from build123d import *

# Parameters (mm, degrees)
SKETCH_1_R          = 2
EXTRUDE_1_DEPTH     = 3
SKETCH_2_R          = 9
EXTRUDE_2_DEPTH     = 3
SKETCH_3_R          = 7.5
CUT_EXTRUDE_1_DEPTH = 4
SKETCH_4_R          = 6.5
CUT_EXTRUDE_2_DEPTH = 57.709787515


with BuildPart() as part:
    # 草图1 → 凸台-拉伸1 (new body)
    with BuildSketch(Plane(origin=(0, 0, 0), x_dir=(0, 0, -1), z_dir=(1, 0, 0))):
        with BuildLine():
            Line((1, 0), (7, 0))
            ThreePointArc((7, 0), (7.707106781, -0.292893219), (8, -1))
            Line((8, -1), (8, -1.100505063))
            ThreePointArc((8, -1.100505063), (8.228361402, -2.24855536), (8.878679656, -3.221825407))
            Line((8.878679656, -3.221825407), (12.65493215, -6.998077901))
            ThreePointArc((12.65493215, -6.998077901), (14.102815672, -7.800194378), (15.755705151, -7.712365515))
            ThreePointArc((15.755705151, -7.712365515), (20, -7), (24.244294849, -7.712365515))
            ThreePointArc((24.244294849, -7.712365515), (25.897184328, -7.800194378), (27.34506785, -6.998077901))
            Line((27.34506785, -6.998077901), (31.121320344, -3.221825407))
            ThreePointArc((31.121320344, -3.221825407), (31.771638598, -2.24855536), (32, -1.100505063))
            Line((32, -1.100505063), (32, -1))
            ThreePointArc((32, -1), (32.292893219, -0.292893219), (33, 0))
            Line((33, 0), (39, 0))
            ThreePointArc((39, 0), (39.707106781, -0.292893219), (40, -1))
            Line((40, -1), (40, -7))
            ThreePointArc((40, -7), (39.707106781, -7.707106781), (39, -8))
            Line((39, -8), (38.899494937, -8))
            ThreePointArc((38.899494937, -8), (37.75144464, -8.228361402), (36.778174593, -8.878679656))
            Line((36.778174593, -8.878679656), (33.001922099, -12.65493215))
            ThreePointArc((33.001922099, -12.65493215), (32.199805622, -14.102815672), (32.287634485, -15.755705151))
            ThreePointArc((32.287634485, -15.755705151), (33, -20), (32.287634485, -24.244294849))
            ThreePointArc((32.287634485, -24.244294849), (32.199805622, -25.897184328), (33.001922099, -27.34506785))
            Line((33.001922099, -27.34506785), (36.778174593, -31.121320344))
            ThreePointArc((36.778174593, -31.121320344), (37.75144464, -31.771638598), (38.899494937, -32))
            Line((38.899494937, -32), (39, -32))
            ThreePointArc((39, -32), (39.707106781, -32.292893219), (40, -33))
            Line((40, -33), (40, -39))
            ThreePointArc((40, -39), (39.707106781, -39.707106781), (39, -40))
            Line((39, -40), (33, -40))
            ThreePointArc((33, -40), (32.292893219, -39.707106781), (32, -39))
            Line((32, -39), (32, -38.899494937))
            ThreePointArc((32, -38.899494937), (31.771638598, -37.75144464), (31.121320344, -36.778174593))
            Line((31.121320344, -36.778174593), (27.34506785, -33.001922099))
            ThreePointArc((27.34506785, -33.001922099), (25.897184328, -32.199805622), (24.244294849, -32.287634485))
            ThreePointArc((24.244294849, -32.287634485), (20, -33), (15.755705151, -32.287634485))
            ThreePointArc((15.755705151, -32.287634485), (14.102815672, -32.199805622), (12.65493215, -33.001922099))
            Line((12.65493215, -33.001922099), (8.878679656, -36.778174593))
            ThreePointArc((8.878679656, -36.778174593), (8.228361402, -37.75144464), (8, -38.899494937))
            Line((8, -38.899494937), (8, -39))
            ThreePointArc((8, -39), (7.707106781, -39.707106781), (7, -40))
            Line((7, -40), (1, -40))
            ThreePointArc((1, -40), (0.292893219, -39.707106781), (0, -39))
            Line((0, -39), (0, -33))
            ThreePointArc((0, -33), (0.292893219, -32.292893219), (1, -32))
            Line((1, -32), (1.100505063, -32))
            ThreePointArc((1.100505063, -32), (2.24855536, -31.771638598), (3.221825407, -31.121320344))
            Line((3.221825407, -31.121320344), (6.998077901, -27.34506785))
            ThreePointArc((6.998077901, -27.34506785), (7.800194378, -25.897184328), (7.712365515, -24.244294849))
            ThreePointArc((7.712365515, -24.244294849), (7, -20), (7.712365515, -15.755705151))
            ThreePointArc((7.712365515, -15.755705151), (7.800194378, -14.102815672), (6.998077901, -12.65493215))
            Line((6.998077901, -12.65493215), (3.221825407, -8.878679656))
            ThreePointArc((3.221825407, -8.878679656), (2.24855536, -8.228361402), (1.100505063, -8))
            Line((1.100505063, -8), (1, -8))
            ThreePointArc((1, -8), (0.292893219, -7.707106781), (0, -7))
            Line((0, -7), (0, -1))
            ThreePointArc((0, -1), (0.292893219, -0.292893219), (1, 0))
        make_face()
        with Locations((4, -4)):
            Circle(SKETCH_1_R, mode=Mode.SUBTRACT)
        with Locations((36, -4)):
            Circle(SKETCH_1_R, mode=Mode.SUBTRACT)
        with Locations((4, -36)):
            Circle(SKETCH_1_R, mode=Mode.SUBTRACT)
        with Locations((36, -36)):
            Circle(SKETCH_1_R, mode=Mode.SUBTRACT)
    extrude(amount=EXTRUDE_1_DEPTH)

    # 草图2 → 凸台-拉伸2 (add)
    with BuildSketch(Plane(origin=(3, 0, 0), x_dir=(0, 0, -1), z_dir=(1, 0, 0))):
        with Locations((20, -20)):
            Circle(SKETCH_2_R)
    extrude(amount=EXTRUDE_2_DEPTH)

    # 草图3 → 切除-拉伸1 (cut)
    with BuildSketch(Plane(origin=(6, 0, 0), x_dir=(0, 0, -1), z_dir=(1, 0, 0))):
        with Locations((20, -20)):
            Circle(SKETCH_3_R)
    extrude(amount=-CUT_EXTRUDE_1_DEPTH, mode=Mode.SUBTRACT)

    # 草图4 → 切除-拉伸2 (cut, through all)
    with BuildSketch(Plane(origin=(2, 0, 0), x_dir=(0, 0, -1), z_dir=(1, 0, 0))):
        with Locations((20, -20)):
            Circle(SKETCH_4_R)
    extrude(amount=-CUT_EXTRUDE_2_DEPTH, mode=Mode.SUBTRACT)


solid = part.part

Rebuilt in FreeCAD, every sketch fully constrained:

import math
import FreeCAD as App
import Part
import Sketcher
from FreeCAD import Vector
Q = App.Units.Quantity

doc = App.newDocument("Part")
params = doc.addObject("Spreadsheet::Sheet", "Params")
for row, (alias, value) in enumerate([
    ("sketch1_diameter", "4 mm"),
    ("sketch1_radius", "1 mm"),
    ("sketch1_radius2", "3 mm"),
    ("sketch1_radius3", "13 mm"),
    ("sketch1_width", "6 mm"),
    ("pad1_length", "3 mm"),
    ("sketch2_diameter", "18 mm"),
    ("pad2_length", "3 mm"),
    ("sketch3_diameter", "15 mm"),
    ("pocket1_length", "4 mm"),
    ("sketch4_diameter", "13 mm"),
], start=1):
    params.set(f"A{row}", alias)
    params.set(f"B{row}", "=" + value)
    params.setAlias(f"B{row}", alias)

body = doc.addObject("PartDesign::Body", "Body")

sketch1 = body.newObject("Sketcher::SketchObject", "Sketch")
sketch1.AttachmentSupport = (doc.getObject("YZ_Plane"), [""])
sketch1.MapMode = "FlatFace"
sketch1.addGeometry(Part.LineSegment(Vector(0, -7, 0), Vector(0, -1, 0)), False)
sketch1.addGeometry(Part.ArcOfCircle(Part.Circle(Vector(-1, -1, 0), Vector(0, 0, 1), 1), math.radians(0), math.radians(90)), False)
sketch1.addGeometry(Part.LineSegment(Vector(-1, 0, 0), Vector(-7, 0, 0)), False)
sketch1.addGeometry(Part.ArcOfCircle(Part.Circle(Vector(-7, -1, 0), Vector(0, 0, 1), 1), math.radians(90), math.radians(180)), False)
sketch1.addGeometry(Part.LineSegment(Vector(-8, -1, 0), Vector(-8, -1.1, 0)), False)
sketch1.addGeometry(Part.ArcOfCircle(Part.Circle(Vector(-11, -1.1, 0), Vector(0, 0, 1), 3), math.radians(-45), math.radians(0)), False)
sketch1.addGeometry(Part.LineSegment(Vector(-8.88, -3.22, 0), Vector(-12.65, -7, 0)), False)
sketch1.addGeometry(Part.ArcOfCircle(Part.Circle(Vector(-14.78, -4.88, 0), Vector(0, 0, 1), 3), math.radians(-109), math.radians(-45)), False)
sketch1.addGeometry(Part.ArcOfCircle(Part.Circle(Vector(-20, -20, 0), Vector(0, 0, 1), 13), math.radians(71), math.radians(109)), False)
sketch1.addGeometry(Part.ArcOfCircle(Part.Circle(Vector(-25.22, -4.88, 0), Vector(0, 0, 1), 3), math.radians(-135), math.radians(-71)), False)
sketch1.addGeometry(Part.LineSegment(Vector(-27.35, -7, 0), Vector(-31.12, -3.22, 0)), False)
sketch1.addGeometry(Part.ArcOfCircle(Part.Circle(Vector(-29, -1.1, 0), Vector(0, 0, 1), 3), math.radians(180), math.radians(225)), False)
sketch1.addGeometry(Part.LineSegment(Vector(-32, -1.1, 0), Vector(-32, -1, 0)), False)
sketch1.addGeometry(Part.ArcOfCircle(Part.Circle(Vector(-33, -1, 0), Vector(0, 0, 1), 1), math.radians(0), math.radians(90)), False)
sketch1.addGeometry(Part.LineSegment(Vector(-33, 0, 0), Vector(-39, 0, 0)), False)
sketch1.addGeometry(Part.ArcOfCircle(Part.Circle(Vector(-39, -1, 0), Vector(0, 0, 1), 1), math.radians(90), math.radians(180)), False)
sketch1.addGeometry(Part.LineSegment(Vector(-40, -1, 0), Vector(-40, -7, 0)), False)
sketch1.addGeometry(Part.ArcOfCircle(Part.Circle(Vector(-39, -7, 0), Vector(0, 0, 1), 1), math.radians(-180), math.radians(-90)), False)
sketch1.addGeometry(Part.LineSegment(Vector(-39, -8, 0), Vector(-38.9, -8, 0)), False)
sketch1.addGeometry(Part.ArcOfCircle(Part.Circle(Vector(-38.9, -11, 0), Vector(0, 0, 1), 3), math.radians(45), math.radians(90)), False)
sketch1.addGeometry(Part.LineSegment(Vector(-36.78, -8.88, 0), Vector(-33, -12.65, 0)), False)
sketch1.addGeometry(Part.ArcOfCircle(Part.Circle(Vector(-35.12, -14.78, 0), Vector(0, 0, 1), 3), math.radians(-19), math.radians(45)), False)
sketch1.addGeometry(Part.ArcOfCircle(Part.Circle(Vector(-20, -20, 0), Vector(0, 0, 1), 13), math.radians(161), math.radians(199)), False)
sketch1.addGeometry(Part.ArcOfCircle(Part.Circle(Vector(-35.12, -25.22, 0), Vector(0, 0, 1), 3), math.radians(-45), math.radians(19)), False)
sketch1.addGeometry(Part.LineSegment(Vector(-33, -27.35, 0), Vector(-36.78, -31.12, 0)), False)
sketch1.addGeometry(Part.ArcOfCircle(Part.Circle(Vector(-38.9, -29, 0), Vector(0, 0, 1), 3), math.radians(-90), math.radians(-45)), False)
sketch1.addGeometry(Part.LineSegment(Vector(-38.9, -32, 0), Vector(-39, -32, 0)), False)
sketch1.addGeometry(Part.ArcOfCircle(Part.Circle(Vector(-39, -33, 0), Vector(0, 0, 1), 1), math.radians(90), math.radians(180)), False)
sketch1.addGeometry(Part.LineSegment(Vector(-40, -33, 0), Vector(-40, -39, 0)), False)
sketch1.addGeometry(Part.ArcOfCircle(Part.Circle(Vector(-39, -39, 0), Vector(0, 0, 1), 1), math.radians(-180), math.radians(-90)), False)
sketch1.addGeometry(Part.LineSegment(Vector(-39, -40, 0), Vector(-33, -40, 0)), False)
sketch1.addGeometry(Part.ArcOfCircle(Part.Circle(Vector(-33, -39, 0), Vector(0, 0, 1), 1), math.radians(-90), math.radians(0)), False)
sketch1.addGeometry(Part.LineSegment(Vector(-32, -39, 0), Vector(-32, -38.9, 0)), False)
sketch1.addGeometry(Part.ArcOfCircle(Part.Circle(Vector(-29, -38.9, 0), Vector(0, 0, 1), 3), math.radians(135), math.radians(180)), False)
sketch1.addGeometry(Part.LineSegment(Vector(-31.12, -36.78, 0), Vector(-27.35, -33, 0)), False)
sketch1.addGeometry(Part.ArcOfCircle(Part.Circle(Vector(-25.22, -35.12, 0), Vector(0, 0, 1), 3), math.radians(71), math.radians(135)), False)
sketch1.addGeometry(Part.ArcOfCircle(Part.Circle(Vector(-20, -20, 0), Vector(0, 0, 1), 13), math.radians(-109), math.radians(-71)), False)
sketch1.addGeometry(Part.ArcOfCircle(Part.Circle(Vector(-14.78, -35.12, 0), Vector(0, 0, 1), 3), math.radians(45), math.radians(109)), False)
sketch1.addGeometry(Part.LineSegment(Vector(-12.65, -33, 0), Vector(-8.88, -36.78, 0)), False)
sketch1.addGeometry(Part.ArcOfCircle(Part.Circle(Vector(-11, -38.9, 0), Vector(0, 0, 1), 3), math.radians(0), math.radians(45)), False)
sketch1.addGeometry(Part.LineSegment(Vector(-8, -38.9, 0), Vector(-8, -39, 0)), False)
sketch1.addGeometry(Part.ArcOfCircle(Part.Circle(Vector(-7, -39, 0), Vector(0, 0, 1), 1), math.radians(-180), math.radians(-90)), False)
sketch1.addGeometry(Part.LineSegment(Vector(-7, -40, 0), Vector(-1, -40, 0)), False)
sketch1.addGeometry(Part.ArcOfCircle(Part.Circle(Vector(-1, -39, 0), Vector(0, 0, 1), 1), math.radians(-90), math.radians(0)), False)
sketch1.addGeometry(Part.LineSegment(Vector(0, -39, 0), Vector(0, -33, 0)), False)
sketch1.addGeometry(Part.ArcOfCircle(Part.Circle(Vector(-1, -33, 0), Vector(0, 0, 1), 1), math.radians(0), math.radians(90)), False)
sketch1.addGeometry(Part.LineSegment(Vector(-1, -32, 0), Vector(-1.1, -32, 0)), False)
sketch1.addGeometry(Part.ArcOfCircle(Part.Circle(Vector(-1.1, -29, 0), Vector(0, 0, 1), 3), math.radians(-135), math.radians(-90)), False)
sketch1.addGeometry(Part.LineSegment(Vector(-3.22, -31.12, 0), Vector(-7, -27.35, 0)), False)
sketch1.addGeometry(Part.ArcOfCircle(Part.Circle(Vector(-4.88, -25.22, 0), Vector(0, 0, 1), 3), math.radians(161), math.radians(225)), False)
sketch1.addGeometry(Part.ArcOfCircle(Part.Circle(Vector(-20, -20, 0), Vector(0, 0, 1), 13), math.radians(-19), math.radians(19)), False)
sketch1.addGeometry(Part.ArcOfCircle(Part.Circle(Vector(-4.88, -14.78, 0), Vector(0, 0, 1), 3), math.radians(135), math.radians(199)), False)
sketch1.addGeometry(Part.LineSegment(Vector(-7, -12.65, 0), Vector(-3.22, -8.88, 0)), False)
sketch1.addGeometry(Part.ArcOfCircle(Part.Circle(Vector(-1.1, -11, 0), Vector(0, 0, 1), 3), math.radians(90), math.radians(135)), False)
sketch1.addGeometry(Part.LineSegment(Vector(-1.1, -8, 0), Vector(-1, -8, 0)), False)
sketch1.addGeometry(Part.ArcOfCircle(Part.Circle(Vector(-1, -7, 0), Vector(0, 0, 1), 1), math.radians(-90), math.radians(0)), False)
sketch1.addGeometry(Part.Circle(Vector(-36, -36, 0), Vector(0, 0, 1), 2), False)
sketch1.addGeometry(Part.Circle(Vector(-36, -4, 0), Vector(0, 0, 1), 2), False)
sketch1.addGeometry(Part.Circle(Vector(-4, -36, 0), Vector(0, 0, 1), 2), False)
sketch1.addGeometry(Part.Circle(Vector(-4, -4, 0), Vector(0, 0, 1), 2), False)
sketch1.addConstraint(Sketcher.Constraint("Tangent", 0, 2, 1, 1))
sketch1.addConstraint(Sketcher.Constraint("Tangent", 1, 2, 2, 1))
sketch1.addConstraint(Sketcher.Constraint("Tangent", 2, 2, 3, 1))
sketch1.addConstraint(Sketcher.Constraint("Tangent", 3, 2, 4, 1))
sketch1.addConstraint(Sketcher.Constraint("Tangent", 4, 2, 5, 2))
sketch1.addConstraint(Sketcher.Constraint("Tangent", 5, 1, 6, 1))
sketch1.addConstraint(Sketcher.Constraint("Tangent", 6, 2, 7, 2))
sketch1.addConstraint(Sketcher.Constraint("Tangent", 7, 1, 8, 1))
sketch1.addConstraint(Sketcher.Constraint("Tangent", 8, 2, 9, 2))
sketch1.addConstraint(Sketcher.Constraint("Tangent", 9, 1, 10, 1))
sketch1.addConstraint(Sketcher.Constraint("Tangent", 10, 2, 11, 2))
sketch1.addConstraint(Sketcher.Constraint("Tangent", 11, 1, 12, 1))
sketch1.addConstraint(Sketcher.Constraint("Tangent", 12, 2, 13, 1))
sketch1.addConstraint(Sketcher.Constraint("Tangent", 13, 2, 14, 1))
sketch1.addConstraint(Sketcher.Constraint("Tangent", 14, 2, 15, 1))
sketch1.addConstraint(Sketcher.Constraint("Tangent", 15, 2, 16, 1))
sketch1.addConstraint(Sketcher.Constraint("Tangent", 16, 2, 17, 1))
sketch1.addConstraint(Sketcher.Constraint("Tangent", 17, 2, 18, 1))
sketch1.addConstraint(Sketcher.Constraint("Tangent", 18, 2, 19, 2))
sketch1.addConstraint(Sketcher.Constraint("Tangent", 19, 1, 20, 1))
sketch1.addConstraint(Sketcher.Constraint("Tangent", 20, 2, 21, 2))
sketch1.addConstraint(Sketcher.Constraint("Tangent", 21, 1, 22, 1))
sketch1.addConstraint(Sketcher.Constraint("Tangent", 22, 2, 23, 2))
sketch1.addConstraint(Sketcher.Constraint("Tangent", 23, 1, 24, 1))
sketch1.addConstraint(Sketcher.Constraint("Tangent", 24, 2, 25, 2))
sketch1.addConstraint(Sketcher.Constraint("Tangent", 25, 1, 26, 1))
sketch1.addConstraint(Sketcher.Constraint("Tangent", 26, 2, 27, 1))
sketch1.addConstraint(Sketcher.Constraint("Tangent", 27, 2, 28, 1))
sketch1.addConstraint(Sketcher.Constraint("Tangent", 28, 2, 29, 1))
sketch1.addConstraint(Sketcher.Constraint("Tangent", 29, 2, 30, 1))
sketch1.addConstraint(Sketcher.Constraint("Tangent", 30, 2, 31, 1))
sketch1.addConstraint(Sketcher.Constraint("Tangent", 31, 2, 32, 1))
sketch1.addConstraint(Sketcher.Constraint("Tangent", 32, 2, 33, 2))
sketch1.addConstraint(Sketcher.Constraint("Tangent", 33, 1, 34, 1))
sketch1.addConstraint(Sketcher.Constraint("Tangent", 34, 2, 35, 2))
sketch1.addConstraint(Sketcher.Constraint("Tangent", 35, 1, 36, 1))
sketch1.addConstraint(Sketcher.Constraint("Tangent", 36, 2, 37, 2))
sketch1.addConstraint(Sketcher.Constraint("Tangent", 37, 1, 38, 1))
sketch1.addConstraint(Sketcher.Constraint("Tangent", 38, 2, 39, 2))
sketch1.addConstraint(Sketcher.Constraint("Tangent", 39, 1, 40, 1))
sketch1.addConstraint(Sketcher.Constraint("Tangent", 40, 2, 41, 1))
sketch1.addConstraint(Sketcher.Constraint("Tangent", 41, 2, 42, 1))
sketch1.addConstraint(Sketcher.Constraint("Tangent", 42, 2, 43, 1))
sketch1.addConstraint(Sketcher.Constraint("Tangent", 43, 2, 44, 1))
sketch1.addConstraint(Sketcher.Constraint("Tangent", 44, 2, 45, 1))
sketch1.addConstraint(Sketcher.Constraint("Tangent", 45, 2, 46, 1))
sketch1.addConstraint(Sketcher.Constraint("Tangent", 46, 2, 47, 2))
sketch1.addConstraint(Sketcher.Constraint("Tangent", 47, 1, 48, 1))
sketch1.addConstraint(Sketcher.Constraint("Tangent", 48, 2, 49, 2))
sketch1.addConstraint(Sketcher.Constraint("Tangent", 49, 1, 50, 1))
sketch1.addConstraint(Sketcher.Constraint("Tangent", 50, 2, 51, 2))
sketch1.addConstraint(Sketcher.Constraint("Tangent", 51, 1, 52, 1))
sketch1.addConstraint(Sketcher.Constraint("Tangent", 52, 2, 53, 2))
sketch1.addConstraint(Sketcher.Constraint("Tangent", 53, 1, 54, 1))
sketch1.addConstraint(Sketcher.Constraint("Tangent", 54, 2, 55, 1))
sketch1.addConstraint(Sketcher.Constraint("Tangent", 55, 2, 0, 1))
sketch1.addConstraint(Sketcher.Constraint("Vertical", 0))
sketch1.addConstraint(Sketcher.Constraint("Horizontal", 2))
sketch1.addConstraint(Sketcher.Constraint("Vertical", 4))
sketch1.addConstraint(Sketcher.Constraint("Vertical", 12))
sketch1.addConstraint(Sketcher.Constraint("Horizontal", 14))
sketch1.addConstraint(Sketcher.Constraint("Vertical", 16))
sketch1.addConstraint(Sketcher.Constraint("Horizontal", 18))
sketch1.addConstraint(Sketcher.Constraint("Horizontal", 26))
sketch1.addConstraint(Sketcher.Constraint("Vertical", 28))
sketch1.addConstraint(Sketcher.Constraint("Horizontal", 30))
sketch1.addConstraint(Sketcher.Constraint("Vertical", 32))
sketch1.addConstraint(Sketcher.Constraint("Vertical", 40))
sketch1.addConstraint(Sketcher.Constraint("Horizontal", 42))
sketch1.addConstraint(Sketcher.Constraint("Vertical", 44))
sketch1.addConstraint(Sketcher.Constraint("Horizontal", 46))
sketch1.addConstraint(Sketcher.Constraint("Horizontal", 54))
sketch1.addConstraint(Sketcher.Constraint("Coincident", 22, 3, 8, 3))
sketch1.addConstraint(Sketcher.Constraint("Coincident", 36, 3, 8, 3))
sketch1.addConstraint(Sketcher.Constraint("Coincident", 50, 3, 8, 3))
sketch1.addConstraint(Sketcher.Constraint("Equal", 1, 3))
sketch1.addConstraint(Sketcher.Constraint("Equal", 5, 7))
sketch1.addConstraint(Sketcher.Constraint("Equal", 7, 9))
sketch1.addConstraint(Sketcher.Constraint("Equal", 9, 11))
sketch1.addConstraint(Sketcher.Constraint("Equal", 3, 13))
sketch1.addConstraint(Sketcher.Constraint("Equal", 13, 15))
sketch1.addConstraint(Sketcher.Constraint("Equal", 15, 17))
sketch1.addConstraint(Sketcher.Constraint("Equal", 11, 19))
sketch1.addConstraint(Sketcher.Constraint("Equal", 19, 21))
sketch1.addConstraint(Sketcher.Constraint("Equal", 8, 22))
sketch1.addConstraint(Sketcher.Constraint("Equal", 21, 23))
sketch1.addConstraint(Sketcher.Constraint("Equal", 23, 25))
sketch1.addConstraint(Sketcher.Constraint("Equal", 17, 27))
sketch1.addConstraint(Sketcher.Constraint("Equal", 27, 29))
sketch1.addConstraint(Sketcher.Constraint("Equal", 29, 31))
sketch1.addConstraint(Sketcher.Constraint("Equal", 25, 33))
sketch1.addConstraint(Sketcher.Constraint("Equal", 33, 35))
sketch1.addConstraint(Sketcher.Constraint("Equal", 22, 36))
sketch1.addConstraint(Sketcher.Constraint("Equal", 35, 37))
sketch1.addConstraint(Sketcher.Constraint("Equal", 37, 39))
sketch1.addConstraint(Sketcher.Constraint("Equal", 31, 41))
sketch1.addConstraint(Sketcher.Constraint("Equal", 41, 43))
sketch1.addConstraint(Sketcher.Constraint("Equal", 43, 45))
sketch1.addConstraint(Sketcher.Constraint("Equal", 39, 47))
sketch1.addConstraint(Sketcher.Constraint("Equal", 47, 49))
sketch1.addConstraint(Sketcher.Constraint("Equal", 36, 50))
sketch1.addConstraint(Sketcher.Constraint("Equal", 49, 51))
sketch1.addConstraint(Sketcher.Constraint("Equal", 51, 53))
sketch1.addConstraint(Sketcher.Constraint("Equal", 45, 55))
sketch1.addConstraint(Sketcher.Constraint("Equal", 56, 57))
sketch1.addConstraint(Sketcher.Constraint("Equal", 57, 58))
sketch1.addConstraint(Sketcher.Constraint("Equal", 58, 59))
sketch1.addConstraint(Sketcher.Constraint("PointOnObject", 0, 2, -2))
sketch1.addConstraint(Sketcher.Constraint("PointOnObject", 1, 2, -1))
sketch1.addConstraint(Sketcher.Constraint("PointOnObject", 13, 2, -1))
sketch1.addConstraint(Sketcher.Constraint("PointOnObject", 43, 2, -2))
sketch1.addConstraint(Sketcher.Constraint("Perpendicular", 6, 10))
sketch1.addConstraint(Sketcher.Constraint("Parallel", 10, 20))
sketch1.addConstraint(Sketcher.Constraint("Perpendicular", 20, 24))
sketch1.addConstraint(Sketcher.Constraint("Parallel", 24, 34))
sketch1.addConstraint(Sketcher.Constraint("Perpendicular", 34, 38))
sketch1.addConstraint(Sketcher.Constraint("Parallel", 38, 48))
sketch1.addConstraint(Sketcher.Constraint("Perpendicular", 48, 52))
sketch1.addConstraint(Sketcher.Constraint("Horizontal", 7, 3, 9, 3))
sketch1.addConstraint(Sketcher.Constraint("Horizontal", 5, 3, 11, 3))
sketch1.addConstraint(Sketcher.Constraint("Horizontal", 35, 3, 37, 3))
sketch1.addConstraint(Sketcher.Constraint("Horizontal", 33, 3, 39, 3))
sketch1.addConstraint(Sketcher.Constraint("Horizontal", 31, 3, 41, 3))
sketch1.addConstraint(Sketcher.Constraint("Horizontal", 27, 3, 45, 3))
sketch1.addConstraint(Sketcher.Constraint("Horizontal", 23, 3, 49, 3))
sketch1.addConstraint(Sketcher.Constraint("Horizontal", 21, 3, 51, 3))
sketch1.addConstraint(Sketcher.Constraint("Horizontal", 19, 3, 53, 3))
sketch1.addConstraint(Sketcher.Constraint("Horizontal", 56, 3, 58, 3))
sketch1.addConstraint(Sketcher.Constraint("Horizontal", 57, 3, 59, 3))
sketch1.addConstraint(Sketcher.Constraint("Horizontal", 6, 2, 9, 1))
sketch1.addConstraint(Sketcher.Constraint("Vertical", 21, 3, 23, 3))
sketch1.addConstraint(Sketcher.Constraint("Vertical", 19, 3, 25, 3))
sketch1.addConstraint(Sketcher.Constraint("Vertical", 17, 3, 27, 3))
sketch1.addConstraint(Sketcher.Constraint("Vertical", 13, 3, 31, 3))
sketch1.addConstraint(Sketcher.Constraint("Vertical", 9, 3, 35, 3))
sketch1.addConstraint(Sketcher.Constraint("Vertical", 56, 3, 57, 3))
sketch1.addConstraint(Sketcher.Constraint("Vertical", 58, 3, 59, 3))
sketch1.addConstraint(Sketcher.Constraint("Equal", 2, 14))
sketch1.addConstraint(Sketcher.Constraint("Equal", 42, 0))
sketch1.addConstraint(Sketcher.Constraint("Equal", 54, 4))
sketch1.addConstraint(Sketcher.Constraint("Equal", 16, 28))
sketch1.addConstraint(Sketcher.Constraint("Equal", 10, 20))
sketch1.addConstraint(Sketcher.Constraint("Diameter", 56, Q("4 mm")))
sketch1.addConstraint(Sketcher.Constraint("Radius", 1, Q("1 mm")))
sketch1.addConstraint(Sketcher.Constraint("Radius", 5, Q("3 mm")))
sketch1.addConstraint(Sketcher.Constraint("Radius", 8, Q("13 mm")))
sketch1.addConstraint(Sketcher.Constraint("DistanceX", 2, 2, 2, 1, Q("6 mm")))
sketch1.addConstraint(Sketcher.Constraint("DistanceX", 8, 3, -1, 1, Q("20 mm")))
sketch1.addConstraint(Sketcher.Constraint("DistanceX", 56, 3, -1, 1, Q("36 mm")))
sketch1.addConstraint(Sketcher.Constraint("DistanceY", 56, 3, -1, 1, Q("36 mm")))
sketch1.addConstraint(Sketcher.Constraint("DistanceY", 57, 3, -1, 1, Q("4 mm")))
sketch1.addConstraint(Sketcher.Constraint("DistanceX", 58, 3, -1, 1, Q("4 mm")))
sketch1.addConstraint(Sketcher.Constraint("DistanceX", 18, 1, 18, 2, Q("0.100505 mm")))
sketch1.setExpression("Constraints[142]", "Params.sketch1_diameter")
sketch1.setExpression("Constraints[143]", "Params.sketch1_radius")
sketch1.setExpression("Constraints[144]", "Params.sketch1_radius2")
sketch1.setExpression("Constraints[145]", "Params.sketch1_radius3")
sketch1.setExpression("Constraints[146]", "Params.sketch1_width")
pad1 = body.newObject("PartDesign::Pad", "Pad")
pad1.Profile = sketch1
pad1.setExpression("Length", "Params.pad1_length")

sketch2 = body.newObject("Sketcher::SketchObject", "Sketch001")
sketch2.AttachmentSupport = (doc.getObject("YZ_Plane"), [""])
sketch2.MapMode = "FlatFace"
sketch2.AttachmentOffset = App.Placement(Vector(0, 0, 3), App.Rotation())
sketch2.addGeometry(Part.Circle(Vector(-20, -20, 0), Vector(0, 0, 1), 9), False)
sketch2.addConstraint(Sketcher.Constraint("Diameter", 0, Q("18 mm")))
sketch2.addConstraint(Sketcher.Constraint("DistanceX", 0, 3, -1, 1, Q("20 mm")))
sketch2.addConstraint(Sketcher.Constraint("DistanceY", 0, 3, -1, 1, Q("20 mm")))
sketch2.setExpression("Constraints[0]", "Params.sketch2_diameter")
pad2 = body.newObject("PartDesign::Pad", "Pad001")
pad2.Profile = sketch2
pad2.setExpression("Length", "Params.pad2_length")

sketch3 = body.newObject("Sketcher::SketchObject", "Sketch002")
sketch3.AttachmentSupport = (doc.getObject("YZ_Plane"), [""])
sketch3.MapMode = "FlatFace"
sketch3.AttachmentOffset = App.Placement(Vector(0, 0, 6), App.Rotation())
sketch3.addGeometry(Part.Circle(Vector(-20, -20, 0), Vector(0, 0, 1), 8), False)
sketch3.addConstraint(Sketcher.Constraint("Diameter", 0, Q("15 mm")))
sketch3.addConstraint(Sketcher.Constraint("DistanceX", 0, 3, -1, 1, Q("20 mm")))
sketch3.addConstraint(Sketcher.Constraint("DistanceY", 0, 3, -1, 1, Q("20 mm")))
sketch3.setExpression("Constraints[0]", "Params.sketch3_diameter")
pocket1 = body.newObject("PartDesign::Pocket", "Pocket")
pocket1.Profile = sketch3
pocket1.setExpression("Length", "Params.pocket1_length")

sketch4 = body.newObject("Sketcher::SketchObject", "Sketch003")
sketch4.AttachmentSupport = (doc.getObject("YZ_Plane"), [""])
sketch4.MapMode = "FlatFace"
sketch4.AttachmentOffset = App.Placement(Vector(0, 0, 2), App.Rotation())
sketch4.addGeometry(Part.Circle(Vector(-20, -20, 0), Vector(0, 0, 1), 6), False)
sketch4.addConstraint(Sketcher.Constraint("Diameter", 0, Q("13 mm")))
sketch4.addConstraint(Sketcher.Constraint("DistanceX", 0, 3, -1, 1, Q("20 mm")))
sketch4.addConstraint(Sketcher.Constraint("DistanceY", 0, 3, -1, 1, Q("20 mm")))
sketch4.setExpression("Constraints[0]", "Params.sketch4_diameter")
pocket2 = body.newObject("PartDesign::Pocket", "Pocket001")
pocket2.Profile = sketch4
pocket2.Type = "ThroughAll"

doc.recompute()
